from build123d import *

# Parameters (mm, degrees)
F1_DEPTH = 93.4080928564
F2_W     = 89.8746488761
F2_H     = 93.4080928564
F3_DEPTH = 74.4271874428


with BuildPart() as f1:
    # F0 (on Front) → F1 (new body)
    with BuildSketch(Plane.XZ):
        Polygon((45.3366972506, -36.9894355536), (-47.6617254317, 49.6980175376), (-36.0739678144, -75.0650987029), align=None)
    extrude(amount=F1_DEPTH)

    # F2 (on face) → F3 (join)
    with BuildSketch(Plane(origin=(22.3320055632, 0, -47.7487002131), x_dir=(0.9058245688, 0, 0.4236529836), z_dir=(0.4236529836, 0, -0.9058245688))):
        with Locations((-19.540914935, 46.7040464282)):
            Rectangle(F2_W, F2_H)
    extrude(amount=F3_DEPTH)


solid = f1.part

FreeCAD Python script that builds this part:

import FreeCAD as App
import Part
import Sketcher
from FreeCAD import Vector

doc = App.newDocument("Part")
body = doc.addObject("PartDesign::Body", "Body")

# Sketch on XZ plane
sketch1 = doc.addObject("Sketcher::SketchObject", "Sketch")
body.addObject(sketch1)
sketch1.AttachmentSupport = (doc.XZ_Plane, [""])
sketch1.MapMode = "FlatFace"
sketch1.addGeometry([
    Part.LineSegment(Vector(45, -37, 0), Vector(-48, 50, 0)),
    Part.LineSegment(Vector(-48, 50, 0), Vector(-36, -75, 0)),
    Part.LineSegment(Vector(-36, -75, 0), Vector(45, -37, 0)),
], False)
sketch1.addConstraint([
    Sketcher.Constraint("Coincident", 0, 2, 1, 1),
    Sketcher.Constraint("Coincident", 1, 2, 2, 1),
    Sketcher.Constraint("Coincident", 2, 2, 0, 1),
    Sketcher.Constraint("DistanceY", 1, 2, -1, 1, 75.065099),
    Sketcher.Constraint("Distance", 2, 89.874649),
    Sketcher.Constraint("Distance", 0, 127.135444),
    Sketcher.Constraint("Distance", 1, 125.300085),
    Sketcher.Constraint("DistanceX", 0, 2, -1, 1, 47.661725),
    Sketcher.Constraint("DistanceY", -1, 1, 0, 2, 49.698018),
])
pad1 = doc.addObject("PartDesign::Pad", "Pad")
body.addObject(pad1)
pad1.Profile = sketch1
pad1.Length = 93.408093

# Sketch on an angled plane
sketch2 = doc.addObject("Sketcher::SketchObject", "Sketch001")
body.addObject(sketch2)
sketch2.Placement = App.Placement(Vector(22.332006, 0, -47.7487), App.Rotation(Vector(0.905824569, 0, 0.423652984), Vector(0, -1.000000001, 0), Vector(0.423652984, 0, -0.905824569), "ZXY"))
sketch2.addGeometry([
    Part.LineSegment(Vector(-64, 93, 0), Vector(-64, 0, 0)),
    Part.LineSegment(Vector(-64, 0, 0), Vector(25, 0, 0)),
    Part.LineSegment(Vector(25, 0, 0), Vector(25, 93, 0)),
    Part.LineSegment(Vector(25, 93, 0), Vector(-64, 93, 0)),
], False)
sketch2.addConstraint([
    Sketcher.Constraint("Coincident", 0, 2, 1, 1),
    Sketcher.Constraint("Coincident", 1, 2, 2, 1),
    Sketcher.Constraint("Coincident", 2, 2, 3, 1),
    Sketcher.Constraint("Coincident", 3, 2, 0, 1),
    Sketcher.Constraint("Vertical", 0),
    Sketcher.Constraint("Horizontal", 1),
    Sketcher.Constraint("Vertical", 2),
    Sketcher.Constraint("Horizontal", 3),
    Sketcher.Constraint("PointOnObject", 0, 2, -1),
    Sketcher.Constraint("DistanceX", 1, 1, 1, 2, 89.874649),
    Sketcher.Constraint("DistanceY", 0, 2, 0, 1, 93.408093),
    Sketcher.Constraint("DistanceX", 0, 2, -1, 1, 64.478239),
])
pad2 = doc.addObject("PartDesign::Pad", "Pad001")
body.addObject(pad2)
pad2.Profile = sketch2
pad2.Length = 74.427187

doc.recompute()
